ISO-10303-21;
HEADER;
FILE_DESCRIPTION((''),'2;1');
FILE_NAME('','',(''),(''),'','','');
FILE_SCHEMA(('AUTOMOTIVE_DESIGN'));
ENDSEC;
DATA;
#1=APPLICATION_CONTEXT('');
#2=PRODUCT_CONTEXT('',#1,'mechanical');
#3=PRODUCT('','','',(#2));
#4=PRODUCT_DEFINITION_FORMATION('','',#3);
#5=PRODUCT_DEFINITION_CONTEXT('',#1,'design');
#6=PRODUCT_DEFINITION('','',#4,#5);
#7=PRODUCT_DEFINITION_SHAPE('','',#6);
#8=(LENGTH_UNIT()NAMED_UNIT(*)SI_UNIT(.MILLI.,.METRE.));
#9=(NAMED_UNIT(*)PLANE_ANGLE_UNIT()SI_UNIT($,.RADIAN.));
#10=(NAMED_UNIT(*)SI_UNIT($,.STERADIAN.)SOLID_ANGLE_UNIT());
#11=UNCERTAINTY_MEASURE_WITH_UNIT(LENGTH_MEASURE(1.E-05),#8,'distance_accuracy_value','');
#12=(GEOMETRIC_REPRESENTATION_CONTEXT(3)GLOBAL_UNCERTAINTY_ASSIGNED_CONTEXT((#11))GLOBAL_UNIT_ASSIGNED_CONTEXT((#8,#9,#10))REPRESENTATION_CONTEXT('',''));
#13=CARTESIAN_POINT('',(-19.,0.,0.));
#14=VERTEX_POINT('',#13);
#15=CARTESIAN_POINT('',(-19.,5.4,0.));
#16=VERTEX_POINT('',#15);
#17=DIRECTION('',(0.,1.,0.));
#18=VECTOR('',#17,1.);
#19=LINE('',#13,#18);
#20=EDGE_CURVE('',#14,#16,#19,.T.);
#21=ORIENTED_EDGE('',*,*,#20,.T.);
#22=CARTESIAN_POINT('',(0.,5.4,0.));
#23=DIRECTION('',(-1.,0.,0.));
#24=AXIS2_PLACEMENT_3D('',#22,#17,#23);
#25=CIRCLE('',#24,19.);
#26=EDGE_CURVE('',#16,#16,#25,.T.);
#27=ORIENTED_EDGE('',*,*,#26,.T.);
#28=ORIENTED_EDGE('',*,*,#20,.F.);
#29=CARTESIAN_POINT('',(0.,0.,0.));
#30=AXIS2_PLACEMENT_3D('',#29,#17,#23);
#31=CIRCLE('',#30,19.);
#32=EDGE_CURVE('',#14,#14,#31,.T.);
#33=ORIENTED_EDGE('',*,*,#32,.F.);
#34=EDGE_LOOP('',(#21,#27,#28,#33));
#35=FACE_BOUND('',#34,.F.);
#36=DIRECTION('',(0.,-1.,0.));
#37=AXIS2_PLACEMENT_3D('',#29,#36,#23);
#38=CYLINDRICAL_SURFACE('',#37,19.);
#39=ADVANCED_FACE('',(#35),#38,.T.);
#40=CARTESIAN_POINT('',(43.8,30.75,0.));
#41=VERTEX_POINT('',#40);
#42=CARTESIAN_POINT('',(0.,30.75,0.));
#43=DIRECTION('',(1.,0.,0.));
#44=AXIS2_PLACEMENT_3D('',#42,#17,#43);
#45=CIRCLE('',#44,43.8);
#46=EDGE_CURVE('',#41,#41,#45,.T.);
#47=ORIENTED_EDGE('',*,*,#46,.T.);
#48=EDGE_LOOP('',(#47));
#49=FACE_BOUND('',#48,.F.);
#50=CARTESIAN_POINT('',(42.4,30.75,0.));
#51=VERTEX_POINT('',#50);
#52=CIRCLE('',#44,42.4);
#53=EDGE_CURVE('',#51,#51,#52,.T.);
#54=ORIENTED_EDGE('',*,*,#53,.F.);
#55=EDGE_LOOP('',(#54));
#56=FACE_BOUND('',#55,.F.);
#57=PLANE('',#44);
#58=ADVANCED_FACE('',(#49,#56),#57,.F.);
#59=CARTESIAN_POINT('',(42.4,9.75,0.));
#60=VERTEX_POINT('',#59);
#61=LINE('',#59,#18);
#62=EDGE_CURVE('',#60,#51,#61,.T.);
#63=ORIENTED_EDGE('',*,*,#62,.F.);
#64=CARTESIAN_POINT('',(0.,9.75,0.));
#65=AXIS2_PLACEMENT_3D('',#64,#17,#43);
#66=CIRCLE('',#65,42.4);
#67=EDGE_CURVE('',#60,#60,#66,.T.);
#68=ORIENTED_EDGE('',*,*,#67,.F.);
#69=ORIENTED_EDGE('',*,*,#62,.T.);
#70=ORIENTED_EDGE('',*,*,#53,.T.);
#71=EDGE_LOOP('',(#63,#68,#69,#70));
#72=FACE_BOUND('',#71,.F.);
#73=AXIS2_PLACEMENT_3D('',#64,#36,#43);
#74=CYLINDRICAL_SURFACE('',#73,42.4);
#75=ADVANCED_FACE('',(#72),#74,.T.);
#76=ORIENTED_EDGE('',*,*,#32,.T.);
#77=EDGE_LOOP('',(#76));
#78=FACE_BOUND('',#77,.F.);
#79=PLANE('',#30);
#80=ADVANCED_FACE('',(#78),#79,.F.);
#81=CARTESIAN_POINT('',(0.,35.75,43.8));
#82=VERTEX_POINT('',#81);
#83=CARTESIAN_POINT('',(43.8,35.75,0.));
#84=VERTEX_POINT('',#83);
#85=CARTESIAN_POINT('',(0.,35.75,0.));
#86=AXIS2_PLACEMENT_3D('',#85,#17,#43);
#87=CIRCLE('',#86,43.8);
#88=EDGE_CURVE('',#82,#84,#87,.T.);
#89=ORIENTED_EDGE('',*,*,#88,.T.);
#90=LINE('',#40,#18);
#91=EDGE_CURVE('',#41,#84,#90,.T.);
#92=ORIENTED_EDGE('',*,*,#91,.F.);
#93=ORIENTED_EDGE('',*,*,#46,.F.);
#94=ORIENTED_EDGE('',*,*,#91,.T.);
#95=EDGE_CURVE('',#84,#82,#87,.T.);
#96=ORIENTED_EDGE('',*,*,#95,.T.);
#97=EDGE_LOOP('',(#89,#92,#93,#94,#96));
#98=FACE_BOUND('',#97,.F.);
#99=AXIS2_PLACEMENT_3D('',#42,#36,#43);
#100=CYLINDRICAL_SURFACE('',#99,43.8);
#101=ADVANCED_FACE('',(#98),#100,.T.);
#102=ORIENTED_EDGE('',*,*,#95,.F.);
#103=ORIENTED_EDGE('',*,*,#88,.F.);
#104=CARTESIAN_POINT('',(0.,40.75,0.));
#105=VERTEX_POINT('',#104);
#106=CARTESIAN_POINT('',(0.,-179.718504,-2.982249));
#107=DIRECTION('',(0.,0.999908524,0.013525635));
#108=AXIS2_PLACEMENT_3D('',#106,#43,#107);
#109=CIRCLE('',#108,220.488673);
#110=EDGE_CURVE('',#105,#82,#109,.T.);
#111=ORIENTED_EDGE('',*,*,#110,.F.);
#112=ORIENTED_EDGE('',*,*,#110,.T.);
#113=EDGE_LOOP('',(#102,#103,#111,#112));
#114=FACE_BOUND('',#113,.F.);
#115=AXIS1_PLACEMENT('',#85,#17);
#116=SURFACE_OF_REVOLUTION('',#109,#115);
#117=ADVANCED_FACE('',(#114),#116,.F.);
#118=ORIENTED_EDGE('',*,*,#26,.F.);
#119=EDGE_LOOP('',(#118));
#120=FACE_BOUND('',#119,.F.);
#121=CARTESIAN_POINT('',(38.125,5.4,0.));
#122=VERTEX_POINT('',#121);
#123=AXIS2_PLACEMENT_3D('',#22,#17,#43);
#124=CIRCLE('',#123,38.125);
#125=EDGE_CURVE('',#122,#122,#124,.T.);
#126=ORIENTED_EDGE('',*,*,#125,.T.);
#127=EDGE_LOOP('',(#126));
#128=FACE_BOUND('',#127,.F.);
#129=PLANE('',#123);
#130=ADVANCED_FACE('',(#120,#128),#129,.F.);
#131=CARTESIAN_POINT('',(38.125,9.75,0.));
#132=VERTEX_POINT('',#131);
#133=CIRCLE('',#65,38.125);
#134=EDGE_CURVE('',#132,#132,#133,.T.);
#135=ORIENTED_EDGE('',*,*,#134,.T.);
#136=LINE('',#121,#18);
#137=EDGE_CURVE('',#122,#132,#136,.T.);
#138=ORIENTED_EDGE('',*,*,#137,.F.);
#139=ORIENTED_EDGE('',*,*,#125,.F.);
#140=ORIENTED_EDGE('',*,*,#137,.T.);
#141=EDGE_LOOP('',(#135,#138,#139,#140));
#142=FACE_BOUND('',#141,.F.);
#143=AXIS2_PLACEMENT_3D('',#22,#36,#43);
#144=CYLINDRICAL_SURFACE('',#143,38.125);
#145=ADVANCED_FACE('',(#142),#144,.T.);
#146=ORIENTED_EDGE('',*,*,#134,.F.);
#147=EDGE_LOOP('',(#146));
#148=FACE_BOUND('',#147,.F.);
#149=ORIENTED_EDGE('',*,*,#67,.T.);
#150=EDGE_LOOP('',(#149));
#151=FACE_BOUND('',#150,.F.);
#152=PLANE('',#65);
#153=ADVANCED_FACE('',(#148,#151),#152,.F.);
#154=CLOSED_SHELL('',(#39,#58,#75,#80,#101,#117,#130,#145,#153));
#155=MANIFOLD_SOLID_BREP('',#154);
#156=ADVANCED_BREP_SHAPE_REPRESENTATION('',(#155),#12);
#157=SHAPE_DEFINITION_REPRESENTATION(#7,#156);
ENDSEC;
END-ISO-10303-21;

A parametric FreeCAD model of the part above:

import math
import FreeCAD as App
import Part
import Sketcher

V = App.Vector
Q = App.Units.Quantity

doc = App.newDocument("Part")
body = doc.addObject("PartDesign::Body", "Body")

# Sketch on XZ plane
sketch1 = body.newObject("Sketcher::SketchObject", "Sketch")
sketch1.AttachmentSupport = (doc.getObject("XZ_Plane"), [""])
sketch1.MapMode = "FlatFace"
sketch1.addGeometry(Part.Circle(V(0, 0, 0), V(0, 0, 1), 19), False)
sketch1.addConstraint(Sketcher.Constraint("Coincident", 0, 3, -1, 1))
sketch1.addConstraint(Sketcher.Constraint("Diameter", 0, Q("38 mm")))
pad1 = body.newObject("PartDesign::Pad", "Pad")
pad1.Profile = sketch1
pad1.Length = 5.4
pad1.Reversed = True

# Sketch on XZ plane
sketch2 = body.newObject("Sketcher::SketchObject", "Sketch001")
sketch2.AttachmentSupport = (doc.getObject("XZ_Plane"), [""])
sketch2.MapMode = "FlatFace"
sketch2.AttachmentOffset = App.Placement(V(0, 0, -5.4), App.Rotation())
sketch2.addGeometry(Part.Circle(V(0, 0, 0), V(0, 0, 1), 38), False)
sketch2.addConstraint(Sketcher.Constraint("Coincident", 0, 3, -1, 1))
sketch2.addConstraint(Sketcher.Constraint("Diameter", 0, Q("76.25 mm")))
pad2 = body.newObject("PartDesign::Pad", "Pad001")
pad2.Profile = sketch2
pad2.Length = 4.35
pad2.Reversed = True

# Sketch on XZ plane
sketch3 = body.newObject("Sketcher::SketchObject", "Sketch002")
sketch3.AttachmentSupport = (doc.getObject("XZ_Plane"), [""])
sketch3.MapMode = "FlatFace"
sketch3.AttachmentOffset = App.Placement(V(0, 0, -9.75), App.Rotation())
sketch3.addGeometry(Part.Circle(V(0, 0, 0), V(0, 0, 1), 42), False)
sketch3.addConstraint(Sketcher.Constraint("Coincident", 0, 3, -1, 1))
sketch3.addConstraint(Sketcher.Constraint("Diameter", 0, Q("84.8 mm")))
pad3 = body.newObject("PartDesign::Pad", "Pad002")
pad3.Profile = sketch3
pad3.Length = 21
pad3.Reversed = True

# Sketch on XZ plane
sketch4 = body.newObject("Sketcher::SketchObject", "Sketch003")
sketch4.AttachmentSupport = (doc.getObject("XZ_Plane"), [""])
sketch4.MapMode = "FlatFace"
sketch4.AttachmentOffset = App.Placement(V(0, 0, -30.75), App.Rotation())
sketch4.addGeometry(Part.Circle(V(0, 0, 0), V(0, 0, 1), 44), False)
sketch4.addConstraint(Sketcher.Constraint("Coincident", 0, 3, -1, 1))
sketch4.addConstraint(Sketcher.Constraint("Diameter", 0, Q("87.6 mm")))
pad4 = body.newObject("PartDesign::Pad", "Pad003")
pad4.Profile = sketch4
pad4.Length = 5
pad4.Reversed = True

# Sketch on YZ plane
sketch5 = body.newObject("Sketcher::SketchObject", "Sketch004")
sketch5.AttachmentSupport = (doc.getObject("YZ_Plane"), [""])
sketch5.MapMode = "FlatFace"
sketch5.addGeometry(Part.LineSegment(V(36, 44, 0), V(36, 0, 0)), False)
sketch5.addGeometry(Part.LineSegment(V(36, 0, 0), V(41, 0, 0)), False)
sketch5.addGeometry(Part.ArcOfCircle(Part.Circle(V(-180, -3, 0), V(0, 0, 1), 220), math.radians(0.77), math.radians(12.25)), False)
sketch5.addConstraint(Sketcher.Constraint("Coincident", 0, 2, 1, 1))
sketch5.addConstraint(Sketcher.Constraint("Coincident", 1, 2, 2, 1))
sketch5.addConstraint(Sketcher.Constraint("Coincident", 2, 2, 0, 1))
sketch5.addConstraint(Sketcher.Constraint("Vertical", 0))
sketch5.addConstraint(Sketcher.Constraint("Horizontal", 1))
sketch5.addConstraint(Sketcher.Constraint("PointOnObject", 0, 2, -1))
sketch5.addConstraint(Sketcher.Constraint("DistanceX", 1, 1, 1, 2, Q("5 mm")))
sketch5.addConstraint(Sketcher.Constraint("DistanceY", 0, 2, 0, 1, Q("43.8 mm")))
sketch5.addConstraint(Sketcher.Constraint("Radius", 2, Q("220.4895 mm")))
sketch5.addConstraint(Sketcher.Constraint("DistanceX", -1, 1, 0, 2, Q("35.75 mm")))
revolution = body.newObject("PartDesign::Revolution", "Revolution")
revolution.Profile = sketch5
revolution.ReferenceAxis = (sketch5, ["H_Axis"])
revolution.Angle = 360

doc.recompute()
